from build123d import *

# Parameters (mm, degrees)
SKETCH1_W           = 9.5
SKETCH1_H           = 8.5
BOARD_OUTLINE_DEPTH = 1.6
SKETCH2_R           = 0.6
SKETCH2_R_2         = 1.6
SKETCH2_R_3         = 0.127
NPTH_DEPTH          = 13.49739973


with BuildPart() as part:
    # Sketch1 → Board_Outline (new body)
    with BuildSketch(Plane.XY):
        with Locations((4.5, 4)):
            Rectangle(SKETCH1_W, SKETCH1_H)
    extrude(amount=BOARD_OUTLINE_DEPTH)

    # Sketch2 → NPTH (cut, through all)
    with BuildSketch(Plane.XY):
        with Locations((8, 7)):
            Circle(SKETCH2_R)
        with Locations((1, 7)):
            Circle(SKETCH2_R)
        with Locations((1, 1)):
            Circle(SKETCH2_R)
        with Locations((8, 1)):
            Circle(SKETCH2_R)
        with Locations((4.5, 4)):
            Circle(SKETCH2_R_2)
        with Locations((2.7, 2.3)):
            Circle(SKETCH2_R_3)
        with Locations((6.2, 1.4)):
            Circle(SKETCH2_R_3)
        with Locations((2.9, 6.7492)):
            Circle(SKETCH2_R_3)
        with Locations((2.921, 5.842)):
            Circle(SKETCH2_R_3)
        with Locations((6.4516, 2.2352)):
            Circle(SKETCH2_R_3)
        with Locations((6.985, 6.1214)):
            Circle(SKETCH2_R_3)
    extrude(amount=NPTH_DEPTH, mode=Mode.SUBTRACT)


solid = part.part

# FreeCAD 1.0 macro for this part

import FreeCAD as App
import Part
import Sketcher
Q = App.Units.Quantity

doc = App.newDocument("Part")
body = doc.addObject("PartDesign::Body", "Body")

sketch1 = body.newObject("Sketcher::SketchObject", "Sketch")
sketch1.AttachmentSupport = (doc.getObject("XY_Plane"), [""])
sketch1.MapMode = "FlatFace"
sketch1.addGeometry(Part.LineSegment(App.Vector(0, 8, 0), App.Vector(0, 0, 0)), False)
sketch1.addGeometry(Part.LineSegment(App.Vector(0, 0, 0), App.Vector(9, 0, 0)), False)
sketch1.addGeometry(Part.LineSegment(App.Vector(9, 0, 0), App.Vector(9, 8, 0)), False)
sketch1.addGeometry(Part.LineSegment(App.Vector(9, 8, 0), App.Vector(0, 8, 0)), False)
sketch1.addConstraint(Sketcher.Constraint("Coincident", 0, 2, 1, 1))
sketch1.addConstraint(Sketcher.Constraint("Coincident", 1, 2, 2, 1))
sketch1.addConstraint(Sketcher.Constraint("Coincident", 2, 2, 3, 1))
sketch1.addConstraint(Sketcher.Constraint("Coincident", 3, 2, 0, 1))
sketch1.addConstraint(Sketcher.Constraint("Vertical", 0))
sketch1.addConstraint(Sketcher.Constraint("Horizontal", 1))
sketch1.addConstraint(Sketcher.Constraint("Vertical", 2))
sketch1.addConstraint(Sketcher.Constraint("Horizontal", 3))
sketch1.addConstraint(Sketcher.Constraint("DistanceX", 1, 1, 1, 2, Q("9.5 mm")))
sketch1.addConstraint(Sketcher.Constraint("DistanceY", 0, 2, 0, 1, Q("8.5 mm")))
sketch1.addConstraint(Sketcher.Constraint("DistanceX", 0, 2, -1, 1, Q("0.25 mm")))
sketch1.addConstraint(Sketcher.Constraint("DistanceY", 0, 2, -1, 1, Q("0.25 mm")))
pad1 = body.newObject("PartDesign::Pad", "Pad")
pad1.Profile = sketch1
pad1.Length = 1.6

sketch2 = body.newObject("Sketcher::SketchObject", "Sketch001")
sketch2.AttachmentSupport = (doc.getObject("XY_Plane"), [""])
sketch2.MapMode = "FlatFace"
sketch2.addGeometry(Part.Circle(App.Vector(8, 7, 0), App.Vector(0, 0, 1), 0.6), False)
sketch2.addGeometry(Part.Circle(App.Vector(1, 7, 0), App.Vector(0, 0, 1), 0.6), False)
sketch2.addGeometry(Part.Circle(App.Vector(1, 1, 0), App.Vector(0, 0, 1), 0.6), False)
sketch2.addGeometry(Part.Circle(App.Vector(8, 1, 0), App.Vector(0, 0, 1), 0.6), False)
sketch2.addGeometry(Part.Circle(App.Vector(4.5, 4, 0), App.Vector(0, 0, 1), 1.6), False)
sketch2.addGeometry(Part.Circle(App.Vector(2.7, 2.3, 0), App.Vector(0, 0, 1), 0.13), False)
sketch2.addGeometry(Part.Circle(App.Vector(6.2, 1.4, 0), App.Vector(0, 0, 1), 0.13), False)
sketch2.addGeometry(Part.Circle(App.Vector(2.9, 6.75, 0), App.Vector(0, 0, 1), 0.13), False)
sketch2.addGeometry(Part.Circle(App.Vector(2.92, 5.84, 0), App.Vector(0, 0, 1), 0.13), False)
sketch2.addGeometry(Part.Circle(App.Vector(6.45, 2.24, 0), App.Vector(0, 0, 1), 0.13), False)
sketch2.addGeometry(Part.Circle(App.Vector(6.99, 6.12, 0), App.Vector(0, 0, 1), 0.13), False)
sketch2.addConstraint(Sketcher.Constraint("Equal", 0, 1))
sketch2.addConstraint(Sketcher.Constraint("Equal", 1, 2))
sketch2.addConstraint(Sketcher.Constraint("Equal", 2, 3))
sketch2.addConstraint(Sketcher.Constraint("Equal", 5, 6))
sketch2.addConstraint(Sketcher.Constraint("Equal", 6, 7))
sketch2.addConstraint(Sketcher.Constraint("Equal", 7, 8))
sketch2.addConstraint(Sketcher.Constraint("Equal", 8, 9))
sketch2.addConstraint(Sketcher.Constraint("Equal", 9, 10))
sketch2.addConstraint(Sketcher.Constraint("Horizontal", 0, 3, 1, 3))
sketch2.addConstraint(Sketcher.Constraint("Horizontal", 2, 3, 3, 3))
sketch2.addConstraint(Sketcher.Constraint("Vertical", 1, 3, 2, 3))
sketch2.addConstraint(Sketcher.Constraint("Vertical", 0, 3, 3, 3))
sketch2.addConstraint(Sketcher.Constraint("Diameter", 0, Q("1.2 mm")))
sketch2.addConstraint(Sketcher.Constraint("Diameter", 4, Q("3.2 mm")))
sketch2.addConstraint(Sketcher.Constraint("Diameter", 5, Q("0.254 mm")))
sketch2.addConstraint(Sketcher.Constraint("DistanceX", -1, 1, 0, 3, Q("8 mm")))
sketch2.addConstraint(Sketcher.Constraint("DistanceY", -1, 1, 0, 3, Q("7 mm")))
sketch2.addConstraint(Sketcher.Constraint("DistanceX", -1, 1, 1, 3, Q("1 mm")))
sketch2.addConstraint(Sketcher.Constraint("DistanceY", -1, 1, 2, 3, Q("1 mm")))
sketch2.addConstraint(Sketcher.Constraint("DistanceY", -1, 1, 4, 3, Q("4 mm")))
sketch2.addConstraint(Sketcher.Constraint("DistanceX", -1, 1, 4, 3, Q("4.5 mm")))
sketch2.addConstraint(Sketcher.Constraint("DistanceX", -1, 1, 5, 3, Q("2.7 mm")))
sketch2.addConstraint(Sketcher.Constraint("DistanceY", -1, 1, 5, 3, Q("2.3 mm")))
sketch2.addConstraint(Sketcher.Constraint("DistanceX", -1, 1, 6, 3, Q("6.2 mm")))
sketch2.addConstraint(Sketcher.Constraint("DistanceY", -1, 1, 6, 3, Q("1.4 mm")))
sketch2.addConstraint(Sketcher.Constraint("DistanceX", -1, 1, 7, 3, Q("2.9 mm")))
sketch2.addConstraint(Sketcher.Constraint("DistanceX", -1, 1, 8, 3, Q("2.921 mm")))
sketch2.addConstraint(Sketcher.Constraint("DistanceY", -1, 1, 8, 3, Q("5.842 mm")))
sketch2.addConstraint(Sketcher.Constraint("DistanceX", -1, 1, 10, 3, Q("6.985 mm")))
sketch2.addConstraint(Sketcher.Constraint("DistanceY", -1, 1, 7, 3, Q("6.7492 mm")))
sketch2.addConstraint(Sketcher.Constraint("DistanceX", -1, 1, 9, 3, Q("6.4516 mm")))
sketch2.addConstraint(Sketcher.Constraint("DistanceY", -1, 1, 9, 3, Q("2.2352 mm")))
sketch2.addConstraint(Sketcher.Constraint("DistanceY", -1, 1, 10, 3, Q("6.1214 mm")))
pocket1 = body.newObject("PartDesign::Pocket", "Pocket")
pocket1.Profile = sketch2
pocket1.Type = "ThroughAll"
pocket1.Reversed = True

doc.recompute()
